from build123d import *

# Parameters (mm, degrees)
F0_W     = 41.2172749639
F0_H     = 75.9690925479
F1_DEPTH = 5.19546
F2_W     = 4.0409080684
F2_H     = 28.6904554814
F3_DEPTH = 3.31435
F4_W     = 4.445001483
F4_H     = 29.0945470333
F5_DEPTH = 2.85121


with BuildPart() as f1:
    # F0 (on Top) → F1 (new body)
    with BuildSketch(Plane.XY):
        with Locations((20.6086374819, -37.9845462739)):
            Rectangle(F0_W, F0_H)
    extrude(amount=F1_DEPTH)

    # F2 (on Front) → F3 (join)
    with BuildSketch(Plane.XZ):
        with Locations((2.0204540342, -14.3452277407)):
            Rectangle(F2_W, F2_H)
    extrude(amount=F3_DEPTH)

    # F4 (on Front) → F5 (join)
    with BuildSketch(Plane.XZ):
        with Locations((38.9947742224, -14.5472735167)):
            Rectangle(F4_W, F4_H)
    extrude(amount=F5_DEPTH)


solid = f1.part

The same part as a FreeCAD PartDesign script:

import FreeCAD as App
import Part
import Sketcher
from FreeCAD import Vector
Q = App.Units.Quantity

doc = App.newDocument("Part")
body = doc.addObject("PartDesign::Body", "Body")

# Sketch on XY plane
sketch1 = body.newObject("Sketcher::SketchObject", "Sketch")
sketch1.AttachmentSupport = (doc.getObject("XY_Plane"), [""])
sketch1.MapMode = "FlatFace"
sketch1.addGeometry([
    Part.LineSegment(Vector(0, 0, 0), Vector(0, -75.969093, 0)),
    Part.LineSegment(Vector(0, -75.969093, 0), Vector(41.217275, -75.969093, 0)),
    Part.LineSegment(Vector(41.217275, -75.969093, 0), Vector(41.217275, 0, 0)),
    Part.LineSegment(Vector(41.217275, 0, 0), Vector(0, 0, 0)),
], False)
sketch1.addConstraint([
    Sketcher.Constraint("Coincident", 0, 2, 1, 1),
    Sketcher.Constraint("Coincident", 1, 2, 2, 1),
    Sketcher.Constraint("Coincident", 2, 2, 3, 1),
    Sketcher.Constraint("Coincident", 3, 2, 0, 1),
    Sketcher.Constraint("Vertical", 0),
    Sketcher.Constraint("Horizontal", 1),
    Sketcher.Constraint("Vertical", 2),
    Sketcher.Constraint("Horizontal", 3),
    Sketcher.Constraint("Coincident", 3, 2, -1, 1),
    Sketcher.Constraint("DistanceX", 1, 1, 1, 2, 41.217275),
    Sketcher.Constraint("DistanceY", 0, 2, 0, 1, 75.969093),
])
pad1 = body.newObject("PartDesign::Pad", "Pad")
pad1.Profile = sketch1
pad1.Length = 5.19546

# Sketch on XZ plane
sketch2 = body.newObject("Sketcher::SketchObject", "Sketch001")
sketch2.AttachmentSupport = (doc.getObject("XZ_Plane"), [""])
sketch2.MapMode = "FlatFace"
sketch2.addGeometry([
    Part.LineSegment(Vector(0, 0, 0), Vector(0, -28.690455, 0)),
    Part.LineSegment(Vector(0, -28.690455, 0), Vector(4.040908, -28.690455, 0)),
    Part.LineSegment(Vector(4.040908, -28.690455, 0), Vector(4.040908, 0, 0)),
    Part.LineSegment(Vector(4.040908, 0, 0), Vector(0, 0, 0)),
], False)
sketch2.addConstraint([
    Sketcher.Constraint("Coincident", 0, 2, 1, 1),
    Sketcher.Constraint("Coincident", 1, 2, 2, 1),
    Sketcher.Constraint("Coincident", 2, 2, 3, 1),
    Sketcher.Constraint("Coincident", 3, 2, 0, 1),
    Sketcher.Constraint("Vertical", 0),
    Sketcher.Constraint("Horizontal", 1),
    Sketcher.Constraint("Vertical", 2),
    Sketcher.Constraint("Horizontal", 3),
    Sketcher.Constraint("Coincident", 3, 2, -1, 1),
    Sketcher.Constraint("DistanceX", 1, 1, 1, 2, 4.040908),
    Sketcher.Constraint("DistanceY", 0, 2, 0, 1, 28.690455),
])
pad2 = body.newObject("PartDesign::Pad", "Pad001")
pad2.Profile = sketch2
pad2.Length = 3.31435

# Sketch on XZ plane
sketch3 = body.newObject("Sketcher::SketchObject", "Sketch002")
sketch3.AttachmentSupport = (doc.getObject("XZ_Plane"), [""])
sketch3.MapMode = "FlatFace"
sketch3.addGeometry([
    Part.LineSegment(Vector(36.772273, 0, 0), Vector(36.772273, -29.094547, 0)),
    Part.LineSegment(Vector(36.772273, -29.094547, 0), Vector(41.217275, -29.094547, 0)),
    Part.LineSegment(Vector(41.217275, -29.094547, 0), Vector(41.217275, 0, 0)),
    Part.LineSegment(Vector(41.217275, 0, 0), Vector(36.772273, 0, 0)),
], False)
sketch3.addConstraint([
    Sketcher.Constraint("Coincident", 0, 2, 1, 1),
    Sketcher.Constraint("Coincident", 1, 2, 2, 1),
    Sketcher.Constraint("Coincident", 2, 2, 3, 1),
    Sketcher.Constraint("Coincident", 3, 2, 0, 1),
    Sketcher.Constraint("Vertical", 0),
    Sketcher.Constraint("Horizontal", 1),
    Sketcher.Constraint("Vertical", 2),
    Sketcher.Constraint("Horizontal", 3),
    Sketcher.Constraint("PointOnObject", 2, 2, -1),
    Sketcher.Constraint("DistanceX", 1, 1, 1, 2, Q("0.1750001 in")),
    Sketcher.Constraint("DistanceY", 0, 2, 0, 1, 29.094547),
    Sketcher.Constraint("DistanceX", -1, 1, 0, 2, 36.772273),
])
pad3 = body.newObject("PartDesign::Pad", "Pad002")
pad3.Profile = sketch3
pad3.Length = 2.85121

doc.recompute()
